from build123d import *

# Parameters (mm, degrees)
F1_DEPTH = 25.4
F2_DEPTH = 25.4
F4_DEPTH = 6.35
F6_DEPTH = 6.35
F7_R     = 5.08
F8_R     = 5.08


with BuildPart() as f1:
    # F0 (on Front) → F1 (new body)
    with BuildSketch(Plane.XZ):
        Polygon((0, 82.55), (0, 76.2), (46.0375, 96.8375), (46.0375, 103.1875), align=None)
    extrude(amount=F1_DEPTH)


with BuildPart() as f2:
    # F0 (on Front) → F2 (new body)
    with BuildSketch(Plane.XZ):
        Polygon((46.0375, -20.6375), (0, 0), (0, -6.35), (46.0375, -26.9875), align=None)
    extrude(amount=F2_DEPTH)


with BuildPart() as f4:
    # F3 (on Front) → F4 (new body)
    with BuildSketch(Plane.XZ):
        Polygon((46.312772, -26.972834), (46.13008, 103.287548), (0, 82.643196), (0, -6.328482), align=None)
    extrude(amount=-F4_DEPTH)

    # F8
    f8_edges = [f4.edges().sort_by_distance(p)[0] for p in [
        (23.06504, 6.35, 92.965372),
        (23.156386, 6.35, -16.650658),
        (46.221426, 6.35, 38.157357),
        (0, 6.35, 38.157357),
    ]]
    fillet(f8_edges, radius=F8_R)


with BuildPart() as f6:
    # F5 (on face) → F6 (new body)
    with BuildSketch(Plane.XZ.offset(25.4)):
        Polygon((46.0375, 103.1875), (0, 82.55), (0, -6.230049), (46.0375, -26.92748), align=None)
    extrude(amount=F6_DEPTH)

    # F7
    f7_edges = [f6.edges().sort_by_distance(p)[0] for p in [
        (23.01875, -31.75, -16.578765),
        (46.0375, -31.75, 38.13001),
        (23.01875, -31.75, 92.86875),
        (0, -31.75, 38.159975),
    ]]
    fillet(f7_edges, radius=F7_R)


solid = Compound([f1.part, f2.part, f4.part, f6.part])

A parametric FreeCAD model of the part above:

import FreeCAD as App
import Part
import Sketcher
from FreeCAD import Vector
Q = App.Units.Quantity


def edges_at(feature, points):
    """Names of the edges that pass closest to the given points."""
    edges = feature.Shape.Edges
    near = lambda p: min(range(len(edges)), key=lambda i: edges[i].distToShape(Part.Vertex(*p))[0])
    return sorted({f"Edge{near(p) + 1}" for p in points})


def add_polygon(sketch, points):
    """Adds a closed chain of lines whose ends are joined by coincident constraints."""
    first, n = sketch.GeometryCount, len(points)
    for a, b in zip(points, points[1:] + points[:1]):
        sketch.addGeometry(Part.LineSegment(App.Vector(*a, 0), App.Vector(*b, 0)), False)
    for i in range(n):
        sketch.addConstraint(Sketcher.Constraint("Coincident", first + i, 2, first + (i + 1) % n, 1))

doc = App.newDocument("Part")
body = doc.addObject("PartDesign::Body", "Body")

# Sketch on XZ plane
sketch1 = body.newObject("Sketcher::SketchObject", "Sketch")
sketch1.AttachmentSupport = (doc.getObject("XZ_Plane"), [""])
sketch1.MapMode = "FlatFace"
add_polygon(sketch1, [(0, 82.55), (0, 76.2), (46.0375, 96.8375), (46.0375, 103.1875)])  # lines 0-3
sketch1.addConstraint(Sketcher.Constraint("Vertical", 0))
sketch1.addConstraint(Sketcher.Constraint("Vertical", 2))
sketch1.addConstraint(Sketcher.Constraint("PointOnObject", 0, 2, -2))
sketch1.addConstraint(Sketcher.Constraint("Parallel", 1, 3))
sketch1.addConstraint(Sketcher.Constraint("DistanceY", -1, 1, 0, 2, Q("3 in")))
sketch1.addConstraint(Sketcher.Constraint("DistanceY", 0, 2, 0, 1, Q("0.25 in")))
sketch1.addConstraint(Sketcher.Constraint("DistanceX", -1, 1, 1, 2, Q("1.8125 in")))
sketch1.addConstraint(Sketcher.Constraint("DistanceY", -1, 1, 1, 2, Q("3.8125 in")))
pad1 = body.newObject("PartDesign::Pad", "Pad")
pad1.Profile = sketch1
pad1.Length = Q("1 in")
body2 = doc.addObject("PartDesign::Body", "Body001")

# Sketch on XZ plane
sketch2 = body2.newObject("Sketcher::SketchObject", "Sketch001")
sketch2.AttachmentSupport = (doc.getObject("XZ_Plane001"), [""])
sketch2.MapMode = "FlatFace"
add_polygon(sketch2, [(46.0375, -20.6375), (0, 0), (0, -6.35), (46.0375, -26.9875)])  # lines 0-3
sketch2.addConstraint(Sketcher.Constraint("Vertical", 1))
sketch2.addConstraint(Sketcher.Constraint("Vertical", 3))
sketch2.addConstraint(Sketcher.Constraint("Coincident", 0, 2, -1, 1))
sketch2.addConstraint(Sketcher.Constraint("Parallel", 0, 2))
sketch2.addConstraint(Sketcher.Constraint("DistanceY", 1, 2, 1, 1, Q("0.25 in")))
sketch2.addConstraint(Sketcher.Constraint("DistanceX", -1, 1, 2, 2, Q("1.8125 in")))
sketch2.addConstraint(Sketcher.Constraint("DistanceY", 2, 2, -1, 1, Q("1.0625 in")))
pad2 = body2.newObject("PartDesign::Pad", "Pad001")
pad2.Profile = sketch2
pad2.Length = Q("1 in")
body3 = doc.addObject("PartDesign::Body", "Body002")

# Sketch on XZ plane
sketch3 = body3.newObject("Sketcher::SketchObject", "Sketch002")
sketch3.AttachmentSupport = (doc.getObject("XZ_Plane002"), [""])
sketch3.MapMode = "FlatFace"
add_polygon(sketch3, [(46.312772, -26.972834), (46.13008, 103.287548), (0, 82.643196), (0, -6.328482)])  # lines 0-3
sketch3.addConstraint(Sketcher.Constraint("Vertical", 2))
sketch3.addConstraint(Sketcher.Constraint("PointOnObject", 1, 2, -2))
sketch3.addConstraint(Sketcher.Constraint("Distance", 0, 130.26051))
sketch3.addConstraint(Sketcher.Constraint("Distance", 3, 50.705642))
sketch3.addConstraint(Sketcher.Constraint("DistanceY", 2, 2, 2, 1, 88.971678))
sketch3.addConstraint(Sketcher.Constraint("DistanceX", -1, 1, 0, 2, 46.13008))
sketch3.addConstraint(Sketcher.Constraint("DistanceY", -1, 1, 0, 2, 103.287548))
sketch3.addConstraint(Sketcher.Constraint("DistanceY", 1, 2, 0, 2, 20.644352))
pad3 = body3.newObject("PartDesign::Pad", "Pad002")
pad3.Profile = sketch3
pad3.Length = Q("0.25 in")
pad3.Reversed = True
doc.recompute()

fillet = body3.newObject("PartDesign::Fillet", "Fillet")
fillet.Base = (pad3, edges_at(pad3, [
    (23.065, 6.35, 92.965),
    (23.156, 6.35, -16.651),
    (46.221, 6.35, 38.157),
    (0, 6.35, 38.157),
]))
fillet.Radius = Q("0.2 in")
body4 = doc.addObject("PartDesign::Body", "Body003")

# Sketch on XZ plane
sketch4 = body4.newObject("Sketcher::SketchObject", "Sketch003")
sketch4.AttachmentSupport = (doc.getObject("XZ_Plane003"), [""])
sketch4.MapMode = "FlatFace"
sketch4.AttachmentOffset = App.Placement(Vector(0, 0, 1 * 25.4), App.Rotation())
add_polygon(sketch4, [(46.0375, 103.1875), (0, 82.55), (0, -6.230049), (46.0375, -26.92748)])  # lines 0-3
sketch4.addConstraint(Sketcher.Constraint("Vertical", 1))
sketch4.addConstraint(Sketcher.Constraint("Vertical", 3))
sketch4.addConstraint(Sketcher.Constraint("PointOnObject", 0, 2, -2))
sketch4.addConstraint(Sketcher.Constraint("DistanceY", -1, 1, 0, 2, Q("3.25 in")))
sketch4.addConstraint(Sketcher.Constraint("DistanceX", -1, 1, 2, 2, Q("1.8125 in")))
sketch4.addConstraint(Sketcher.Constraint("DistanceY", -1, 1, 3, 2, Q("4.0625 in")))
sketch4.addConstraint(Sketcher.Constraint("DistanceY", 1, 2, 1, 1, 88.780049))
sketch4.addConstraint(Sketcher.Constraint("DistanceY", 3, 1, 3, 2, 130.11498))
pad4 = body4.newObject("PartDesign::Pad", "Pad003")
pad4.Profile = sketch4
pad4.Length = Q("0.25 in")
doc.recompute()

fillet2 = body4.newObject("PartDesign::Fillet", "Fillet001")
fillet2.Base = (pad4, edges_at(pad4, [
    (23.019, -31.75, -16.579),
    (46.038, -31.75, 38.13),
    (23.019, -31.75, 92.869),
    (0, -31.75, 38.16),
]))
fillet2.Radius = Q("0.2 in")

doc.recompute()
